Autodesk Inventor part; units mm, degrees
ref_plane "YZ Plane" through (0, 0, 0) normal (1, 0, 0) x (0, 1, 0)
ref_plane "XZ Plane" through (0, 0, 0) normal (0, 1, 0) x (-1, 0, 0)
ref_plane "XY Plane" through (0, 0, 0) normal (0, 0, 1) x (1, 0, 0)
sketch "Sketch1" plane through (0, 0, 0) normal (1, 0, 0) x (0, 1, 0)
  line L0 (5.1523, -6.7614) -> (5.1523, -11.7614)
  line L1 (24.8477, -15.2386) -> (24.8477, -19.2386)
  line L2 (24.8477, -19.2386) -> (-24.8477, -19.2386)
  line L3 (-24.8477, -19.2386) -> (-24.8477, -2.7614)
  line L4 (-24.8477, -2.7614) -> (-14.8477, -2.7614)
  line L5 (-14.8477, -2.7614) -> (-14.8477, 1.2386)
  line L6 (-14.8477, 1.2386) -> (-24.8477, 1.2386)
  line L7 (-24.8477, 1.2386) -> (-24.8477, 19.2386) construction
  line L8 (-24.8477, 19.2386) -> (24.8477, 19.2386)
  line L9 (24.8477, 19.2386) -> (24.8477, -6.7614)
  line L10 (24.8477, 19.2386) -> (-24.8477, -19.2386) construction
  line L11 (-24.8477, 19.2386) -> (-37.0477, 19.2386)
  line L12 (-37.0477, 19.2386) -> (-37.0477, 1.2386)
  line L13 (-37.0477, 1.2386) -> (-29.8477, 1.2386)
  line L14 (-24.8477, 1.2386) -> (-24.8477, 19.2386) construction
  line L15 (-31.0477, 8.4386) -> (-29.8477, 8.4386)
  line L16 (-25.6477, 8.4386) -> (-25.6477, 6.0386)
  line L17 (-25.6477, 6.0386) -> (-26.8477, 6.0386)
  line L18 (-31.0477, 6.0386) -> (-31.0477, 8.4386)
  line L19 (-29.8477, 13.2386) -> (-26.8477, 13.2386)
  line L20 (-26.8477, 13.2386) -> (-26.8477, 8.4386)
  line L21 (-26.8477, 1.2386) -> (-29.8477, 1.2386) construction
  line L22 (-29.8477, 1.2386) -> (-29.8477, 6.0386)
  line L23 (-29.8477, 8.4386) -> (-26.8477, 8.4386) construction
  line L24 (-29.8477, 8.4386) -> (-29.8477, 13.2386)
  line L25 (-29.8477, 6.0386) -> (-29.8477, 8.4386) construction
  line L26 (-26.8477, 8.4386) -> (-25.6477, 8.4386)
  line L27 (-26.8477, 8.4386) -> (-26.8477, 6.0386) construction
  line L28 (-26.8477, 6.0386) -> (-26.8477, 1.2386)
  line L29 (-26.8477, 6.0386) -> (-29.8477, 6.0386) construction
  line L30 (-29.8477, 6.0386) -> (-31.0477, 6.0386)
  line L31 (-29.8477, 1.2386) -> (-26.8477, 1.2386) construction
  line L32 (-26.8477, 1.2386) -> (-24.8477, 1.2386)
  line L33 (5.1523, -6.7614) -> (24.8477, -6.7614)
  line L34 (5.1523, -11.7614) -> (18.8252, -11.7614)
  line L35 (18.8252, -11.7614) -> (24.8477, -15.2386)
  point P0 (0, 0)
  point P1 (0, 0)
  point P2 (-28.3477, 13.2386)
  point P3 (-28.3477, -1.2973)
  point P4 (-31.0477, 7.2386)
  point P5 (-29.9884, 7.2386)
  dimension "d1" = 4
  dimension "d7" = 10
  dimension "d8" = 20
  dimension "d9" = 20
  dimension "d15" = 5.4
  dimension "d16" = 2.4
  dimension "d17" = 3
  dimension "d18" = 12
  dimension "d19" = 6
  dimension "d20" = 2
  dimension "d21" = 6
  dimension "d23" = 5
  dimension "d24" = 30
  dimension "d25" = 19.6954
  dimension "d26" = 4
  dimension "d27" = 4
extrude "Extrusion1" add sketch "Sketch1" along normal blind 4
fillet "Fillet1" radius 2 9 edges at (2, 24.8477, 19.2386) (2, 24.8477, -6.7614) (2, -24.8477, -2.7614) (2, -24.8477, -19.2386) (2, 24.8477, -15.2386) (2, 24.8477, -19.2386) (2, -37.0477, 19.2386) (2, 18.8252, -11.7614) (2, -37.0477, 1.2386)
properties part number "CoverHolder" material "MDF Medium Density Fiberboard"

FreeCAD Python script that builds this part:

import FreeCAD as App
import Part
import Sketcher

V = App.Vector
Q = App.Units.Quantity


def edges_at(feature, points):
    """Names of the edges that pass closest to the given points."""
    edges = feature.Shape.Edges
    near = lambda p: min(range(len(edges)), key=lambda i: edges[i].distToShape(Part.Vertex(*p))[0])
    return sorted({f"Edge{near(p) + 1}" for p in points})

doc = App.newDocument("Part")
body = doc.addObject("PartDesign::Body", "Body")

sketch1 = body.newObject("Sketcher::SketchObject", "Sketch")
sketch1.AttachmentSupport = (doc.getObject("YZ_Plane"), [""])
sketch1.MapMode = "FlatFace"
sketch1.addGeometry([
    Part.LineSegment(V(5.2, -11.8, 0), V(5.2, -6.8, 0)),
    Part.LineSegment(V(5.2, -6.8, 0), V(24.8, -6.8, 0)),
    Part.LineSegment(V(24.8, -6.8, 0), V(24.8, 19.2, 0)),
    Part.LineSegment(V(24.8, 19.2, 0), V(-37, 19.2, 0)),
    Part.LineSegment(V(-37, 19.2, 0), V(-37, 1.2, 0)),
    Part.LineSegment(V(-37, 1.2, 0), V(-29.8, 1.2, 0)),
    Part.LineSegment(V(-29.8, 1.2, 0), V(-29.8, 6, 0)),
    Part.LineSegment(V(-29.8, 6, 0), V(-31, 6, 0)),
    Part.LineSegment(V(-31, 6, 0), V(-31, 8.4, 0)),
    Part.LineSegment(V(-31, 8.4, 0), V(-29.8, 8.4, 0)),
    Part.LineSegment(V(-29.8, 8.4, 0), V(-29.8, 13.2, 0)),
    Part.LineSegment(V(-29.8, 13.2, 0), V(-26.8, 13.2, 0)),
    Part.LineSegment(V(-26.8, 13.2, 0), V(-26.8, 8.4, 0)),
    Part.LineSegment(V(-26.8, 8.4, 0), V(-25.6, 8.4, 0)),
    Part.LineSegment(V(-25.6, 8.4, 0), V(-25.6, 6, 0)),
    Part.LineSegment(V(-25.6, 6, 0), V(-26.8, 6, 0)),
    Part.LineSegment(V(-26.8, 6, 0), V(-26.8, 1.2, 0)),
    Part.LineSegment(V(-26.8, 1.2, 0), V(-14.8, 1.2, 0)),
    Part.LineSegment(V(-14.8, 1.2, 0), V(-14.8, -2.8, 0)),
    Part.LineSegment(V(-14.8, -2.8, 0), V(-24.8, -2.8, 0)),
    Part.LineSegment(V(-24.8, -2.8, 0), V(-24.8, -19.2, 0)),
    Part.LineSegment(V(-24.8, -19.2, 0), V(24.8, -19.2, 0)),
    Part.LineSegment(V(24.8, -19.2, 0), V(24.8, -15.2, 0)),
    Part.LineSegment(V(24.8, -15.2, 0), V(18.8, -11.8, 0)),
    Part.LineSegment(V(18.8, -11.8, 0), V(5.2, -11.8, 0)),
], False)
sketch1.addConstraint([
    Sketcher.Constraint("Coincident", 0, 2, 1, 1),
    Sketcher.Constraint("Coincident", 1, 2, 2, 1),
    Sketcher.Constraint("Coincident", 2, 2, 3, 1),
    Sketcher.Constraint("Coincident", 3, 2, 4, 1),
    Sketcher.Constraint("Coincident", 4, 2, 5, 1),
    Sketcher.Constraint("Coincident", 5, 2, 6, 1),
    Sketcher.Constraint("Coincident", 6, 2, 7, 1),
    Sketcher.Constraint("Coincident", 7, 2, 8, 1),
    Sketcher.Constraint("Coincident", 8, 2, 9, 1),
    Sketcher.Constraint("Coincident", 9, 2, 10, 1),
    Sketcher.Constraint("Coincident", 10, 2, 11, 1),
    Sketcher.Constraint("Coincident", 11, 2, 12, 1),
    Sketcher.Constraint("Coincident", 12, 2, 13, 1),
    Sketcher.Constraint("Coincident", 13, 2, 14, 1),
    Sketcher.Constraint("Coincident", 14, 2, 15, 1),
    Sketcher.Constraint("Coincident", 15, 2, 16, 1),
    Sketcher.Constraint("Coincident", 16, 2, 17, 1),
    Sketcher.Constraint("Coincident", 17, 2, 18, 1),
    Sketcher.Constraint("Coincident", 18, 2, 19, 1),
    Sketcher.Constraint("Coincident", 19, 2, 20, 1),
    Sketcher.Constraint("Coincident", 20, 2, 21, 1),
    Sketcher.Constraint("Coincident", 21, 2, 22, 1),
    Sketcher.Constraint("Coincident", 22, 2, 23, 1),
    Sketcher.Constraint("Coincident", 23, 2, 24, 1),
    Sketcher.Constraint("Coincident", 24, 2, 0, 1),
    Sketcher.Constraint("Vertical", 0),
    Sketcher.Constraint("Horizontal", 1),
    Sketcher.Constraint("Vertical", 2),
    Sketcher.Constraint("Horizontal", 3),
    Sketcher.Constraint("Vertical", 4),
    Sketcher.Constraint("Horizontal", 5),
    Sketcher.Constraint("Vertical", 6),
    Sketcher.Constraint("Horizontal", 7),
    Sketcher.Constraint("Vertical", 8),
    Sketcher.Constraint("Horizontal", 9),
    Sketcher.Constraint("Vertical", 10),
    Sketcher.Constraint("Horizontal", 11),
    Sketcher.Constraint("Vertical", 12),
    Sketcher.Constraint("Horizontal", 13),
    Sketcher.Constraint("Vertical", 14),
    Sketcher.Constraint("Horizontal", 15),
    Sketcher.Constraint("Vertical", 16),
    Sketcher.Constraint("Horizontal", 17),
    Sketcher.Constraint("Vertical", 18),
    Sketcher.Constraint("Horizontal", 19),
    Sketcher.Constraint("Vertical", 20),
    Sketcher.Constraint("Horizontal", 21),
    Sketcher.Constraint("Vertical", 22),
    Sketcher.Constraint("Horizontal", 24),
    Sketcher.Constraint("Symmetric", 2, 2, 20, 2, -1, 1),
    Sketcher.Constraint("Horizontal", 9, 2, 12, 2),
    Sketcher.Constraint("Horizontal", 7, 2, 14, 2),
    Sketcher.Constraint("Horizontal", 5, 2, 16, 2),
    Sketcher.Constraint("Vertical", 6, 2, 9, 2),
    Sketcher.Constraint("Vertical", 12, 2, 15, 2),
    Sketcher.Constraint("Vertical", 2, 2, 21, 2),
    Sketcher.Constraint("Equal", 9, 13),
    Sketcher.Constraint("Equal", 6, 10),
    Sketcher.Constraint("Equal", 18, 22),
    Sketcher.Constraint("DistanceX", 11, 1, 11, 2, 3.0),
    Sketcher.Constraint("DistanceX", 17, 1, 17, 2, 12.0),
    Sketcher.Constraint("DistanceX", 19, 2, 19, 1, 10.0),
    Sketcher.Constraint("DistanceY", 0, 1, 0, 2, 5.0),
    Sketcher.Constraint("DistanceY", 18, 2, 18, 1, 4.0),
    Sketcher.Constraint("DistanceY", 8, 1, 8, 2, 2.4),
    Sketcher.Constraint("DistanceX", 4, 2, 7, 2, 6.0),
    Sketcher.Constraint("DistanceY", 10, 2, 3, 2, 6.0),
    Sketcher.Constraint("DistanceX", 8, 2, 13, 2, 5.4),
    Sketcher.Constraint("DistanceY", 2, 1, 2, 2, 26.0),
    Sketcher.Constraint("DistanceY", 4, 2, 4, 1, 18.0),
    Sketcher.Constraint("Angle", 23, Q("149.9992 deg")),
    Sketcher.Constraint("DistanceX", 1, 1, 1, 2, 19.6954),
    Sketcher.Constraint("DistanceX", 5, 2, 0, 2, 35.0),
    Sketcher.Constraint("DistanceX", 24, 2, 24, 1, 13.673),
])
pad1 = body.newObject("PartDesign::Pad", "Pad")
pad1.Profile = sketch1
pad1.Length = 4
doc.recompute()

fillet = body.newObject("PartDesign::Fillet", "Fillet")
fillet.Base = (pad1, edges_at(pad1, [
    (2, 24.848, 19.239),
    (2, 24.848, -6.761),
    (2, -24.848, -2.761),
    (2, -24.848, -19.239),
    (2, 24.848, -15.239),
    (2, 24.848, -19.239),
    (2, -37.048, 19.239),
    (2, 18.825, -11.761),
    (2, -37.048, 1.239),
]))
fillet.Radius = 2

doc.recompute()
